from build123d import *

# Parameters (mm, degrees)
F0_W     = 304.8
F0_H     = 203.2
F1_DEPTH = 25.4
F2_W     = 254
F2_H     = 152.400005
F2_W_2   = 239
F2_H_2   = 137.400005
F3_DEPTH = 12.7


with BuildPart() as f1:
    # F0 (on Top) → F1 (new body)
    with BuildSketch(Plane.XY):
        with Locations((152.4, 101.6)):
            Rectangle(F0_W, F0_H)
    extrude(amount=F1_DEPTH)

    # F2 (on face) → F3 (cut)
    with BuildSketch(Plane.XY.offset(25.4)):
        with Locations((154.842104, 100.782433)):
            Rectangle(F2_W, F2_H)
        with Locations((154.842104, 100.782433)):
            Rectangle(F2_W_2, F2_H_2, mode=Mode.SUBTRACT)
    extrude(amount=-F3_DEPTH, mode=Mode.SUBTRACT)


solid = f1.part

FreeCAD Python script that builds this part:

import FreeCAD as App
import Part
import Sketcher

V = App.Vector
Q = App.Units.Quantity


def add_polygon(sketch, points):
    """Adds a closed chain of lines whose ends are joined by coincident constraints."""
    first, n = sketch.GeometryCount, len(points)
    for a, b in zip(points, points[1:] + points[:1]):
        sketch.addGeometry(Part.LineSegment(App.Vector(*a, 0), App.Vector(*b, 0)), False)
    for i in range(n):
        sketch.addConstraint(Sketcher.Constraint("Coincident", first + i, 2, first + (i + 1) % n, 1))

doc = App.newDocument("Part")
params = doc.addObject("Spreadsheet::Sheet", "Params")
for row, (alias, value) in enumerate([
    ("sketch1_width", "12 in"),
    ("sketch1_height", "8 in"),
    ("pad1_length", "1 in"),
    ("sketch2_width", "10 in"),
    ("sketch2_height", "6.0000002 in"),
    ("pocket1_length", "0.5 in"),
], start=1):
    params.set(f"A{row}", alias)
    params.set(f"B{row}", "=" + value)
    params.setAlias(f"B{row}", alias)

body = doc.addObject("PartDesign::Body", "Body")

# Sketch on XY plane
sketch1 = body.newObject("Sketcher::SketchObject", "Sketch")
sketch1.AttachmentSupport = (doc.getObject("XY_Plane"), [""])
sketch1.MapMode = "FlatFace"
add_polygon(sketch1, [(0, 203), (0, 0), (305, 0), (305, 203)])  # lines 0-3
sketch1.addConstraint(Sketcher.Constraint("Vertical", 0))
sketch1.addConstraint(Sketcher.Constraint("Horizontal", 1))
sketch1.addConstraint(Sketcher.Constraint("Vertical", 2))
sketch1.addConstraint(Sketcher.Constraint("Horizontal", 3))
sketch1.addConstraint(Sketcher.Constraint("Coincident", 0, 2, -1, 1))
sketch1.addConstraint(Sketcher.Constraint("DistanceX", 1, 1, 1, 2, Q("12 in")))
sketch1.addConstraint(Sketcher.Constraint("DistanceY", 0, 2, 0, 1, Q("8 in")))
sketch1.setExpression("Constraints[9]", "Params.sketch1_width")
sketch1.setExpression("Constraints[10]", "Params.sketch1_height")
pad1 = body.newObject("PartDesign::Pad", "Pad")
pad1.Profile = sketch1
pad1.setExpression("Length", "Params.pad1_length")

# Sketch on XY plane
sketch2 = body.newObject("Sketcher::SketchObject", "Sketch001")
sketch2.AttachmentSupport = (doc.getObject("XY_Plane"), [""])
sketch2.MapMode = "FlatFace"
sketch2.AttachmentOffset = App.Placement(V(0, 0, 1 * 25.4), App.Rotation())
add_polygon(sketch2, [(28, 177), (28, 25), (282, 25), (282, 177)])  # lines 0-3
add_polygon(sketch2, [(274, 32), (35, 32), (35, 169), (274, 169)])  # lines 4-7
sketch2.addConstraint(Sketcher.Constraint("Vertical", 0))
sketch2.addConstraint(Sketcher.Constraint("Horizontal", 1))
sketch2.addConstraint(Sketcher.Constraint("Vertical", 2))
sketch2.addConstraint(Sketcher.Constraint("Horizontal", 3))
sketch2.addConstraint(Sketcher.Constraint("Horizontal", 4))
sketch2.addConstraint(Sketcher.Constraint("Vertical", 5))
sketch2.addConstraint(Sketcher.Constraint("Horizontal", 6))
sketch2.addConstraint(Sketcher.Constraint("Vertical", 7))
sketch2.addConstraint(Sketcher.Constraint("DistanceX", 1, 1, 1, 2, Q("10 in")))
sketch2.addConstraint(Sketcher.Constraint("DistanceY", 0, 2, 0, 1, Q("6.0000002 in")))
sketch2.addConstraint(Sketcher.Constraint("DistanceX", 4, 2, 4, 1, Q("239 mm")))
sketch2.addConstraint(Sketcher.Constraint("DistanceX", 0, 2, 4, 2, Q("7.5 mm")))
sketch2.addConstraint(Sketcher.Constraint("DistanceY", 0, 2, 4, 2, Q("7.5 mm")))
sketch2.addConstraint(Sketcher.Constraint("DistanceY", 5, 2, 3, 2, Q("7.5 mm")))
sketch2.addConstraint(Sketcher.Constraint("DistanceY", -1, 1, 0, 2, Q("24.582431 mm")))
sketch2.addConstraint(Sketcher.Constraint("DistanceX", -1, 1, 0, 2, Q("27.842104 mm")))
sketch2.setExpression("Constraints[16]", "Params.sketch2_width")
sketch2.setExpression("Constraints[17]", "Params.sketch2_height")
pocket1 = body.newObject("PartDesign::Pocket", "Pocket")
pocket1.Profile = sketch2
pocket1.setExpression("Length", "Params.pocket1_length")

doc.recompute()
